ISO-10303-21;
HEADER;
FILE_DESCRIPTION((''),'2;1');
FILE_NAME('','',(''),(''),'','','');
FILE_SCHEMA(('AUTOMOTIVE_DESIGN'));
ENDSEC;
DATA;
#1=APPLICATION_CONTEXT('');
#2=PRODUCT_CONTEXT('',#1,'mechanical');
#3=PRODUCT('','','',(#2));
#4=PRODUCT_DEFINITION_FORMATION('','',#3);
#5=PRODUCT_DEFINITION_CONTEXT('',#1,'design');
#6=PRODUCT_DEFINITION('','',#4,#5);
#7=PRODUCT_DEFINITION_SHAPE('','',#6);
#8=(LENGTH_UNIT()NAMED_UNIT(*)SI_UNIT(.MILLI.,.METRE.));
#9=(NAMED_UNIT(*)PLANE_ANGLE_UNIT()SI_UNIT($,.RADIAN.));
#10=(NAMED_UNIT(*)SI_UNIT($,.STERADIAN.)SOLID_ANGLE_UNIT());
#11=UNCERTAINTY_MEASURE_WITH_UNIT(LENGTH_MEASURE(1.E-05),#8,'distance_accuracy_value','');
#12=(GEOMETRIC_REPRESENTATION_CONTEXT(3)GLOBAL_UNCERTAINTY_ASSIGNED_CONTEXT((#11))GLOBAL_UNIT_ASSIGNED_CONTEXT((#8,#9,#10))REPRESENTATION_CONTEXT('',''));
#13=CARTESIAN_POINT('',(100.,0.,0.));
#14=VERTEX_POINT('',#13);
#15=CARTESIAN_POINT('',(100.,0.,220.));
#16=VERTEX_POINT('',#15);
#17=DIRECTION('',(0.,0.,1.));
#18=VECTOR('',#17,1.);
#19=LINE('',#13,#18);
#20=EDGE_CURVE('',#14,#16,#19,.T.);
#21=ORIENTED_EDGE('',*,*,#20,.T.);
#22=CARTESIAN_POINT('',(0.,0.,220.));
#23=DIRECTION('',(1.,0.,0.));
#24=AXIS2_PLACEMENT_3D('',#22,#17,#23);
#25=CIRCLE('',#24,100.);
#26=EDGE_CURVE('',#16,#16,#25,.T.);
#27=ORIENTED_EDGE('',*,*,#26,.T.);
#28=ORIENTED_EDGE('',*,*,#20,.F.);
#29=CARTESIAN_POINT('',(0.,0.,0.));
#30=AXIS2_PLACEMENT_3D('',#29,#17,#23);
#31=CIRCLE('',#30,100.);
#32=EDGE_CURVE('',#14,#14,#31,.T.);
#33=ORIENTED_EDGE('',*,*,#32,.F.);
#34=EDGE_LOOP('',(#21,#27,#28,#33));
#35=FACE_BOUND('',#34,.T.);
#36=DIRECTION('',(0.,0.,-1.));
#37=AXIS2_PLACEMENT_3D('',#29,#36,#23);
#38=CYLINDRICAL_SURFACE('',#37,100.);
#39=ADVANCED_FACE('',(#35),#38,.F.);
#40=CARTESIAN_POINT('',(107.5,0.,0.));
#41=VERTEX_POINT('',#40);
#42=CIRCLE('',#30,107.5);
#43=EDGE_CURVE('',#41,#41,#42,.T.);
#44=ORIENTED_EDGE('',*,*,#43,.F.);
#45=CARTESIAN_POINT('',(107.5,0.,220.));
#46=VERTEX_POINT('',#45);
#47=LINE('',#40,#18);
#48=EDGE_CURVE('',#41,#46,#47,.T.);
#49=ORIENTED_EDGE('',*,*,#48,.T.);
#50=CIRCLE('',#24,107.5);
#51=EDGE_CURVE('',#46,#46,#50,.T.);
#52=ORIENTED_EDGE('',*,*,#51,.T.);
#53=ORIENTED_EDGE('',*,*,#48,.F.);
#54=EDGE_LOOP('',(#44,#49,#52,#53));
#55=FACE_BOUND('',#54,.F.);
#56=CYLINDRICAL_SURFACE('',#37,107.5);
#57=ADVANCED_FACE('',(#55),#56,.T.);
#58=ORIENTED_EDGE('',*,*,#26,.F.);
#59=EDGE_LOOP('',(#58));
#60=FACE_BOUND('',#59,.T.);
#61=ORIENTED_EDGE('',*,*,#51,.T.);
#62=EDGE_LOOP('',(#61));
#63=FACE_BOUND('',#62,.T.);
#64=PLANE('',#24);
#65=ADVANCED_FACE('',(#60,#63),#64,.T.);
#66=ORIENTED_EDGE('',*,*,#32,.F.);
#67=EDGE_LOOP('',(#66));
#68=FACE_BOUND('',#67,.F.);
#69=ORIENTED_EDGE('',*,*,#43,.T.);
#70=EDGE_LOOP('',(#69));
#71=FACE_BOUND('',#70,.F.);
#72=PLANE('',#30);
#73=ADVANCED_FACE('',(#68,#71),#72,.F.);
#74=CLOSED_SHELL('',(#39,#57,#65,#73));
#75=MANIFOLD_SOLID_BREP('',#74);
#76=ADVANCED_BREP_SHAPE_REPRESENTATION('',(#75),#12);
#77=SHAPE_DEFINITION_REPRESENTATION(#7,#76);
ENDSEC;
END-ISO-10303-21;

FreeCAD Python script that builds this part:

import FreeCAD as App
import Part
import Sketcher
from FreeCAD import Vector
Q = App.Units.Quantity

doc = App.newDocument("Part")
body = doc.addObject("PartDesign::Body", "Body")

# Sketch on XY plane
sketch1 = doc.addObject("Sketcher::SketchObject", "Sketch")
body.addObject(sketch1)
sketch1.AttachmentSupport = (doc.XY_Plane, [""])
sketch1.MapMode = "FlatFace"
sketch1.addGeometry([
    Part.Circle(Vector(0, 0, 0), Vector(0, 0, 1), 108),
    Part.Circle(Vector(0, 0, 0), Vector(0, 0, 1), 100),
], False)
sketch1.addConstraint([
    Sketcher.Constraint("Coincident", 0, 3, -1, 1),
    Sketcher.Constraint("Coincident", 1, 3, -1, 1),
    Sketcher.Constraint("Diameter", 0, Q("215 mm")),
    Sketcher.Constraint("Diameter", 1, Q("200 mm")),
])
pad1 = doc.addObject("PartDesign::Pad", "Pad")
body.addObject(pad1)
pad1.Profile = sketch1
pad1.Length = 220

doc.recompute()
